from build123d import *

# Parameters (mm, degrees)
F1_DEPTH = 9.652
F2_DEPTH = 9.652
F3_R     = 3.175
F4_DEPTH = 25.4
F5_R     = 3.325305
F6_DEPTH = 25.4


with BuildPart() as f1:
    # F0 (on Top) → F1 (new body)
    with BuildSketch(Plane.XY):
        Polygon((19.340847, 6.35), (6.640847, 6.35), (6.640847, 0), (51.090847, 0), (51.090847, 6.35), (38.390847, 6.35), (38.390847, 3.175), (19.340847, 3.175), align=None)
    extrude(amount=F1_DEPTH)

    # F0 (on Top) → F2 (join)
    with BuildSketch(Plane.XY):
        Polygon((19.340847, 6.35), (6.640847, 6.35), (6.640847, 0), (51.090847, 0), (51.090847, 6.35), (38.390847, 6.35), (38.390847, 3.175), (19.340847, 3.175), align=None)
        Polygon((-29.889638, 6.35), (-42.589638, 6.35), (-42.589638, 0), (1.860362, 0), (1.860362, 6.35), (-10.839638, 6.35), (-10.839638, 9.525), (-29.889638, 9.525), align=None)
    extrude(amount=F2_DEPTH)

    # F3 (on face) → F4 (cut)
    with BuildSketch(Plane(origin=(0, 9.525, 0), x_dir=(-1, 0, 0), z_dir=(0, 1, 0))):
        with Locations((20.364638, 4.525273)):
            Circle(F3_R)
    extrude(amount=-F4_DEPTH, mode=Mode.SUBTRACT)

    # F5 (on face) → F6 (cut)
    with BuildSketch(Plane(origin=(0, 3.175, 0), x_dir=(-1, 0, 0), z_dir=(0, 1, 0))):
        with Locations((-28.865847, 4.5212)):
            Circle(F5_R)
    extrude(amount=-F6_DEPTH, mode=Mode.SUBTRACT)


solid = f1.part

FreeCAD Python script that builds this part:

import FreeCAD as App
import Part
import Sketcher
from FreeCAD import Vector
Q = App.Units.Quantity


def add_polygon(sketch, points):
    """Adds a closed chain of lines whose ends are joined by coincident constraints."""
    first, n = sketch.GeometryCount, len(points)
    for a, b in zip(points, points[1:] + points[:1]):
        sketch.addGeometry(Part.LineSegment(App.Vector(*a, 0), App.Vector(*b, 0)), False)
    for i in range(n):
        sketch.addConstraint(Sketcher.Constraint("Coincident", first + i, 2, first + (i + 1) % n, 1))

doc = App.newDocument("Part")
body = doc.addObject("PartDesign::Body", "Body")
body.AllowCompound = True

# Sketch on XY plane
sketch1 = body.newObject("Sketcher::SketchObject", "Sketch")
sketch1.AttachmentSupport = (doc.getObject("XY_Plane"), [""])
sketch1.MapMode = "FlatFace"
add_polygon(sketch1, [(19.3, 6.3), (6.6, 6.3), (6.6, 0), (51.1, 0), (51.1, 6.3), (38.4, 6.3), (38.4, 3.2), (19.3, 3.2)])  # lines 0-7
sketch1.addConstraint([
    Sketcher.Constraint("Horizontal", 0),
    Sketcher.Constraint("Vertical", 1),
    Sketcher.Constraint("Horizontal", 2),
    Sketcher.Constraint("Vertical", 3),
    Sketcher.Constraint("Horizontal", 4),
    Sketcher.Constraint("Vertical", 5),
    Sketcher.Constraint("Horizontal", 6),
    Sketcher.Constraint("Vertical", 7),
    Sketcher.Constraint("PointOnObject", 1, 2, -1),
    Sketcher.Constraint("Horizontal", 0, 2, 3, 2),
    Sketcher.Constraint("Equal", 0, 4),
    Sketcher.Constraint("DistanceX", 0, 2, 0, 1, Q("0.5 in")),
    Sketcher.Constraint("DistanceX", 2, 1, 2, 2, Q("1.75 in")),
    Sketcher.Constraint("DistanceY", 1, 2, 1, 1, Q("0.25 in")),
    Sketcher.Constraint("DistanceY", 5, 2, 5, 1, Q("0.125 in")),
    Sketcher.Constraint("DistanceX", -1, 1, 0, 2, 6.640847),
])
pad1 = body.newObject("PartDesign::Pad", "Pad")
pad1.Profile = sketch1
pad1.Length = Q("0.38 in")

# Sketch on XY plane
sketch2 = body.newObject("Sketcher::SketchObject", "Sketch001")
sketch2.AttachmentSupport = (doc.getObject("XY_Plane"), [""])
sketch2.MapMode = "FlatFace"
add_polygon(sketch2, [(19.3, 6.3), (6.6, 6.3), (6.6, 0), (51.1, 0), (51.1, 6.3), (38.4, 6.3), (38.4, 3.2), (19.3, 3.2)])  # lines 0-7
add_polygon(sketch2, [(-29.9, 6.3), (-42.6, 6.3), (-42.6, 0), (1.9, 0), (1.9, 6.3), (-10.8, 6.3), (-10.8, 9.5), (-29.9, 9.5)])  # lines 8-15
sketch2.addConstraint([
    Sketcher.Constraint("Horizontal", 0),
    Sketcher.Constraint("Vertical", 1),
    Sketcher.Constraint("Horizontal", 2),
    Sketcher.Constraint("Vertical", 3),
    Sketcher.Constraint("Horizontal", 4),
    Sketcher.Constraint("Vertical", 5),
    Sketcher.Constraint("Horizontal", 6),
    Sketcher.Constraint("Vertical", 7),
    Sketcher.Constraint("Horizontal", 8),
    Sketcher.Constraint("Vertical", 9),
    Sketcher.Constraint("Horizontal", 10),
    Sketcher.Constraint("Vertical", 11),
    Sketcher.Constraint("Horizontal", 12),
    Sketcher.Constraint("Vertical", 13),
    Sketcher.Constraint("Horizontal", 14),
    Sketcher.Constraint("Vertical", 15),
    Sketcher.Constraint("PointOnObject", 1, 2, -1),
    Sketcher.Constraint("PointOnObject", 9, 2, -1),
    Sketcher.Constraint("Horizontal", 0, 2, 3, 2),
    Sketcher.Constraint("Horizontal", 7, 2, 8, 2),
    Sketcher.Constraint("Horizontal", 8, 2, 11, 2),
    Sketcher.Constraint("Equal", 0, 4),
    Sketcher.Constraint("Equal", 4, 8),
    Sketcher.Constraint("Equal", 2, 10),
    Sketcher.Constraint("Equal", 8, 12),
    Sketcher.Constraint("Equal", 7, 13),
    Sketcher.Constraint("DistanceX", 0, 2, 0, 1, Q("0.5 in")),
    Sketcher.Constraint("DistanceX", 2, 1, 2, 2, Q("1.75 in")),
    Sketcher.Constraint("DistanceY", 1, 2, 1, 1, Q("0.25 in")),
    Sketcher.Constraint("DistanceY", 5, 2, 5, 1, Q("0.125 in")),
    Sketcher.Constraint("DistanceX", 12, 2, -1, 1, 10.839638),
    Sketcher.Constraint("DistanceX", -1, 1, 0, 2, 6.640847),
])
pad2 = body.newObject("PartDesign::Pad", "Pad001")
pad2.Profile = sketch2
pad2.Length = Q("0.38 in")

# Sketch on XZ plane
sketch3 = body.newObject("Sketcher::SketchObject", "Sketch002")
sketch3.AttachmentSupport = (doc.getObject("XZ_Plane"), [""])
sketch3.MapMode = "FlatFace"
sketch3.AttachmentOffset = App.Placement(Vector(0, 0, -0.375 * 25.4), App.Rotation())
sketch3.addGeometry(Part.Circle(Vector(-20.4, 4.5, 0), Vector(0, 0, 1), 3.2), False)
sketch3.addConstraint([
    Sketcher.Constraint("Diameter", 0, Q("0.25 in")),
    Sketcher.Constraint("DistanceX", 0, 3, -1, 1, 20.364638),
    Sketcher.Constraint("DistanceY", -1, 1, 0, 3, 4.525273),
])
pocket1 = body.newObject("PartDesign::Pocket", "Pocket")
pocket1.Profile = sketch3
pocket1.Length = Q("1 in")
pocket1.Reversed = True

# Sketch on XZ plane
sketch4 = body.newObject("Sketcher::SketchObject", "Sketch003")
sketch4.AttachmentSupport = (doc.getObject("XZ_Plane"), [""])
sketch4.MapMode = "FlatFace"
sketch4.AttachmentOffset = App.Placement(Vector(0, 0, -0.125 * 25.4), App.Rotation())
sketch4.addGeometry(Part.Circle(Vector(28.9, 4.5, 0), Vector(0, 0, 1), 3.3), False)
sketch4.addConstraint([
    Sketcher.Constraint("Diameter", 0, 6.65061),
    Sketcher.Constraint("DistanceY", -1, 1, 0, 3, Q("0.178 in")),
    Sketcher.Constraint("DistanceX", -1, 1, 0, 3, 28.865847),
])
pocket2 = body.newObject("PartDesign::Pocket", "Pocket001")
pocket2.Profile = sketch4
pocket2.Length = Q("1 in")
pocket2.Reversed = True

doc.recompute()
